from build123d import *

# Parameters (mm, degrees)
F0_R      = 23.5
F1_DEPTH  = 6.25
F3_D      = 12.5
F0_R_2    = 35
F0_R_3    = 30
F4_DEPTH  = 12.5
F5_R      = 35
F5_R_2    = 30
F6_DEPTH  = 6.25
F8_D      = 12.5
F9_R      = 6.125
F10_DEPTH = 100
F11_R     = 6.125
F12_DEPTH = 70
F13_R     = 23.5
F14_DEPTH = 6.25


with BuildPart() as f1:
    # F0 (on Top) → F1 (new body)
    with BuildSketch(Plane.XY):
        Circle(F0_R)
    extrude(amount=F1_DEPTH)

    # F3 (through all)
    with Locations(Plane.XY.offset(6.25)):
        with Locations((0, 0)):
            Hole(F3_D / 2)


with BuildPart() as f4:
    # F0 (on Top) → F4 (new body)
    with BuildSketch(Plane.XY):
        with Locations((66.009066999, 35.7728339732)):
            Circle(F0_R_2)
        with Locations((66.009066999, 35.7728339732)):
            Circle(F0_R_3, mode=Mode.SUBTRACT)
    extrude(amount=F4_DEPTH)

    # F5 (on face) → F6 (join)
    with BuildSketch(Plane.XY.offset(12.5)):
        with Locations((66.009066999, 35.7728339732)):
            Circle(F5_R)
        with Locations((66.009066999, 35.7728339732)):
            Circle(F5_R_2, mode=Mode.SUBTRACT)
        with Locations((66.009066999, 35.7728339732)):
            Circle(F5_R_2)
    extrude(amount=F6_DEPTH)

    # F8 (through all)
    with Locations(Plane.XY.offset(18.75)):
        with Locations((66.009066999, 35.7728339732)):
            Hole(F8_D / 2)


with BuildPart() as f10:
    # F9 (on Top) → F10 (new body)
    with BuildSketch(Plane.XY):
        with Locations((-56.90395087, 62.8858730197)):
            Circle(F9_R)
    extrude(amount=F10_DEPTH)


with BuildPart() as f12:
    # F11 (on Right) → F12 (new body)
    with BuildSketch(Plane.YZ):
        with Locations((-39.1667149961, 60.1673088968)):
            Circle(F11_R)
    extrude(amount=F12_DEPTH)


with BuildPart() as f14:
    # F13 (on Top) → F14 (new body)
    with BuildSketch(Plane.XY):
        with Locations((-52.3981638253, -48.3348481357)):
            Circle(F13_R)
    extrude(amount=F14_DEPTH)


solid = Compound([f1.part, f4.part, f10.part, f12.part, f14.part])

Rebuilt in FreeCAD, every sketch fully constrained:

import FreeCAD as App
import Part
import Sketcher
from FreeCAD import Vector

doc = App.newDocument("Part")
params = doc.addObject("Spreadsheet::Sheet", "Params")
for row, (alias, value) in enumerate([
    ("sketch1_diameter", "47 mm"),
    ("pad1_length", "6.25 mm"),
    ("sketch2_diameter", "12.5 mm"),
    ("hole_diameter", "12.5 mm"),
    ("sketch3_diameter", "70 mm"),
    ("sketch3_diameter2", "60 mm"),
    ("pad2_length", "12.5 mm"),
    ("sketch4_diameter", "70 mm"),
    ("pad3_length", "6.25 mm"),
    ("sketch5_diameter", "12.5 mm"),
    ("hole2_diameter", "12.5 mm"),
    ("sketch6_diameter", "12.25 mm"),
    ("pad4_length", "100 mm"),
    ("sketch7_diameter", "12.25 mm"),
    ("pad5_length", "70 mm"),
    ("sketch8_diameter", "47 mm"),
    ("pad6_length", "6.25 mm"),
], start=1):
    params.set(f"A{row}", alias)
    params.set(f"B{row}", "=" + value)
    params.setAlias(f"B{row}", alias)

body = doc.addObject("PartDesign::Body", "Body")

sketch1 = body.newObject("Sketcher::SketchObject", "Sketch")
sketch1.AttachmentSupport = (doc.getObject("XY_Plane"), [""])
sketch1.MapMode = "FlatFace"
sketch1.addGeometry(Part.Circle(Vector(0, 0, 0), Vector(0, 0, 1), 24), False)
sketch1.addConstraint([
    Sketcher.Constraint("Coincident", 0, 3, -1, 1),
    Sketcher.Constraint("Diameter", 0, 47.0),
])
sketch1.setExpression("Constraints[1]", "Params.sketch1_diameter")
pad1 = body.newObject("PartDesign::Pad", "Pad")
pad1.Profile = sketch1
pad1.setExpression("Length", "Params.pad1_length")

sketch2 = body.newObject("Sketcher::SketchObject", "Sketch001")
sketch2.AttachmentSupport = (doc.getObject("XY_Plane"), [""])
sketch2.MapMode = "FlatFace"
sketch2.AttachmentOffset = App.Placement(Vector(0, 0, 6.25), App.Rotation())
sketch2.addGeometry(Part.Circle(Vector(0, 0, 0), Vector(0, 0, 1), 6), False)
sketch2.addConstraint([
    Sketcher.Constraint("Coincident", 0, 3, -1, 1),
    Sketcher.Constraint("Diameter", 0, 12.5),
])
sketch2.setExpression("Constraints[1]", "Params.sketch2_diameter")
doc.recompute()
hole = body.newObject("PartDesign::Hole", "Hole")
hole.Profile = sketch2
hole.ThreadType = "None"
hole.setExpression("Diameter", "Params.hole_diameter")
hole.DepthType = "ThroughAll"
body2 = doc.addObject("PartDesign::Body", "Body001")

sketch3 = body2.newObject("Sketcher::SketchObject", "Sketch002")
sketch3.AttachmentSupport = (doc.getObject("XY_Plane001"), [""])
sketch3.MapMode = "FlatFace"
sketch3.addGeometry([
    Part.Circle(Vector(66, 36, 0), Vector(0, 0, 1), 35),
    Part.Circle(Vector(66, 36, 0), Vector(0, 0, 1), 30),
], False)
sketch3.addConstraint([
    Sketcher.Constraint("Coincident", 1, 3, 0, 3),
    Sketcher.Constraint("Diameter", 0, 70.0),
    Sketcher.Constraint("Diameter", 1, 60.0),
    Sketcher.Constraint("DistanceX", -1, 1, 0, 3, 66.009067),
    Sketcher.Constraint("DistanceY", -1, 1, 0, 3, 35.772834),
])
sketch3.setExpression("Constraints[1]", "Params.sketch3_diameter")
sketch3.setExpression("Constraints[2]", "Params.sketch3_diameter2")
pad2 = body2.newObject("PartDesign::Pad", "Pad001")
pad2.Profile = sketch3
pad2.setExpression("Length", "Params.pad2_length")

sketch4 = body2.newObject("Sketcher::SketchObject", "Sketch003")
sketch4.AttachmentSupport = (doc.getObject("XY_Plane001"), [""])
sketch4.MapMode = "FlatFace"
sketch4.AttachmentOffset = App.Placement(Vector(0, 0, 12.5), App.Rotation())
sketch4.addGeometry(Part.Circle(Vector(66, 36, 0), Vector(0, 0, 1), 35), False)
sketch4.addConstraint([
    Sketcher.Constraint("Diameter", 0, 70.0),
    Sketcher.Constraint("DistanceX", -1, 1, 0, 3, 66.009067),
    Sketcher.Constraint("DistanceY", -1, 1, 0, 3, 35.772834),
])
sketch4.setExpression("Constraints[0]", "Params.sketch4_diameter")
pad3 = body2.newObject("PartDesign::Pad", "Pad002")
pad3.Profile = sketch4
pad3.setExpression("Length", "Params.pad3_length")

sketch5 = body2.newObject("Sketcher::SketchObject", "Sketch004")
sketch5.AttachmentSupport = (doc.getObject("XY_Plane001"), [""])
sketch5.MapMode = "FlatFace"
sketch5.AttachmentOffset = App.Placement(Vector(0, 0, 18.75), App.Rotation())
sketch5.addGeometry(Part.Circle(Vector(66, 36, 0), Vector(0, 0, 1), 6), False)
sketch5.addConstraint([
    Sketcher.Constraint("Diameter", 0, 12.5),
    Sketcher.Constraint("DistanceX", -1, 1, 0, 3, 66.009067),
    Sketcher.Constraint("DistanceY", -1, 1, 0, 3, 35.772834),
])
sketch5.setExpression("Constraints[0]", "Params.sketch5_diameter")
doc.recompute()
hole2 = body2.newObject("PartDesign::Hole", "Hole001")
hole2.Profile = sketch5
hole2.ThreadType = "None"
hole2.setExpression("Diameter", "Params.hole2_diameter")
hole2.DepthType = "ThroughAll"
body3 = doc.addObject("PartDesign::Body", "Body002")

sketch6 = body3.newObject("Sketcher::SketchObject", "Sketch005")
sketch6.AttachmentSupport = (doc.getObject("XY_Plane002"), [""])
sketch6.MapMode = "FlatFace"
sketch6.addGeometry(Part.Circle(Vector(-57, 63, 0), Vector(0, 0, 1), 6), False)
sketch6.addConstraint([
    Sketcher.Constraint("Diameter", 0, 12.25),
    Sketcher.Constraint("DistanceX", 0, 3, -1, 1, 56.903951),
    Sketcher.Constraint("DistanceY", -1, 1, 0, 3, 62.885873),
])
sketch6.setExpression("Constraints[0]", "Params.sketch6_diameter")
pad4 = body3.newObject("PartDesign::Pad", "Pad003")
pad4.Profile = sketch6
pad4.setExpression("Length", "Params.pad4_length")
body4 = doc.addObject("PartDesign::Body", "Body003")

sketch7 = body4.newObject("Sketcher::SketchObject", "Sketch006")
sketch7.AttachmentSupport = (doc.getObject("YZ_Plane003"), [""])
sketch7.MapMode = "FlatFace"
sketch7.addGeometry(Part.Circle(Vector(-39, 60, 0), Vector(0, 0, 1), 6), False)
sketch7.addConstraint([
    Sketcher.Constraint("Diameter", 0, 12.25),
    Sketcher.Constraint("DistanceY", -1, 1, 0, 3, 60.167309),
    Sketcher.Constraint("DistanceX", 0, 3, -1, 1, 39.166715),
])
sketch7.setExpression("Constraints[0]", "Params.sketch7_diameter")
pad5 = body4.newObject("PartDesign::Pad", "Pad004")
pad5.Profile = sketch7
pad5.setExpression("Length", "Params.pad5_length")
body5 = doc.addObject("PartDesign::Body", "Body004")

sketch8 = body5.newObject("Sketcher::SketchObject", "Sketch007")
sketch8.AttachmentSupport = (doc.getObject("XY_Plane004"), [""])
sketch8.MapMode = "FlatFace"
sketch8.addGeometry(Part.Circle(Vector(-52, -48, 0), Vector(0, 0, 1), 24), False)
sketch8.addConstraint([
    Sketcher.Constraint("Diameter", 0, 47.0),
    Sketcher.Constraint("DistanceY", 0, 3, -1, 1, 48.334848),
    Sketcher.Constraint("DistanceX", 0, 3, -1, 1, 52.398164),
])
sketch8.setExpression("Constraints[0]", "Params.sketch8_diameter")
pad6 = body5.newObject("PartDesign::Pad", "Pad005")
pad6.Profile = sketch8
pad6.setExpression("Length", "Params.pad6_length")

doc.recompute()
